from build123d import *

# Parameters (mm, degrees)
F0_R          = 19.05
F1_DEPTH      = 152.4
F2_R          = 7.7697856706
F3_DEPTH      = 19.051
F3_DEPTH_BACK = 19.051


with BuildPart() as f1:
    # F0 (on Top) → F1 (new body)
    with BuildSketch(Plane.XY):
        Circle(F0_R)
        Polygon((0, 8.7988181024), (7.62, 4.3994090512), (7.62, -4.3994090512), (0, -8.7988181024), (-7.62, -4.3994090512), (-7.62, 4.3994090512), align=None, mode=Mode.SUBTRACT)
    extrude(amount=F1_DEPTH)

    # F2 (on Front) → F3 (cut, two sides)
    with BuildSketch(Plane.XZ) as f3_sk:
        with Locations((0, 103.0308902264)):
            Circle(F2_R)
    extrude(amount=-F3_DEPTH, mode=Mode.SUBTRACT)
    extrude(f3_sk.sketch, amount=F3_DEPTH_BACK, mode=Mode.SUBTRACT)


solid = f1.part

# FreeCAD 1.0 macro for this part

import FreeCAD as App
import Part
import Sketcher

V = App.Vector
Q = App.Units.Quantity


def add_polygon(sketch, points):
    """Adds a closed chain of lines whose ends are joined by coincident constraints."""
    first, n = sketch.GeometryCount, len(points)
    for a, b in zip(points, points[1:] + points[:1]):
        sketch.addGeometry(Part.LineSegment(App.Vector(*a, 0), App.Vector(*b, 0)), False)
    for i in range(n):
        sketch.addConstraint(Sketcher.Constraint("Coincident", first + i, 2, first + (i + 1) % n, 1))

doc = App.newDocument("Part")
body = doc.addObject("PartDesign::Body", "Body")

# Sketch on XY plane
sketch1 = doc.addObject("Sketcher::SketchObject", "Sketch")
body.addObject(sketch1)
sketch1.AttachmentSupport = (doc.XY_Plane, [""])
sketch1.MapMode = "FlatFace"
sketch1.addGeometry(Part.Circle(V(0, 0, 0), V(0, 0, 1), 19), False)  # 0
add_polygon(sketch1, [(-8, 4), (0, 9), (8, 4), (8, -4), (0, -9), (-8, -4)])  # lines 1-6
sketch1.addConstraint([
    Sketcher.Constraint("Vertical", 3),
    Sketcher.Constraint("Vertical", 6),
    Sketcher.Constraint("Coincident", 0, 3, -1, 1),
    Sketcher.Constraint("Symmetric", 1, 2, 4, 2, -1, 1),
    Sketcher.Constraint("Symmetric", 2, 2, 5, 2, -1, 1),
    Sketcher.Constraint("PointOnObject", 1, 2, -2),
    Sketcher.Constraint("Parallel", 1, 4),
    Sketcher.Constraint("Horizontal", 3, 2, 5, 2),
    Sketcher.Constraint("Diameter", 0, Q("1.5 in")),
    Sketcher.Constraint("Angle", 1, Q("30 deg")),
    Sketcher.Constraint("DistanceX", -1, 1, 2, 2, Q("0.3 in")),
    Sketcher.Constraint("DistanceY", 3, 2, 3, 1, 8.798818),
])
pad1 = doc.addObject("PartDesign::Pad", "Pad")
body.addObject(pad1)
pad1.Profile = sketch1
pad1.Length = Q("6 in")

# Sketch on XZ plane
sketch2 = doc.addObject("Sketcher::SketchObject", "Sketch001")
body.addObject(sketch2)
sketch2.AttachmentSupport = (doc.XZ_Plane, [""])
sketch2.MapMode = "FlatFace"
sketch2.addGeometry(Part.Circle(V(0, 103, 0), V(0, 0, 1), 8), False)
sketch2.addConstraint([
    Sketcher.Constraint("PointOnObject", 0, 3, -2),
    Sketcher.Constraint("Diameter", 0, 15.539571),
    Sketcher.Constraint("DistanceY", -1, 1, 0, 3, 103.03089),
])
pocket1 = doc.addObject("PartDesign::Pocket", "Pocket")
body.addObject(pocket1)
pocket1.Profile = sketch2
pocket1.Type = "ThroughAll"
pocket1.Midplane = True

doc.recompute()
